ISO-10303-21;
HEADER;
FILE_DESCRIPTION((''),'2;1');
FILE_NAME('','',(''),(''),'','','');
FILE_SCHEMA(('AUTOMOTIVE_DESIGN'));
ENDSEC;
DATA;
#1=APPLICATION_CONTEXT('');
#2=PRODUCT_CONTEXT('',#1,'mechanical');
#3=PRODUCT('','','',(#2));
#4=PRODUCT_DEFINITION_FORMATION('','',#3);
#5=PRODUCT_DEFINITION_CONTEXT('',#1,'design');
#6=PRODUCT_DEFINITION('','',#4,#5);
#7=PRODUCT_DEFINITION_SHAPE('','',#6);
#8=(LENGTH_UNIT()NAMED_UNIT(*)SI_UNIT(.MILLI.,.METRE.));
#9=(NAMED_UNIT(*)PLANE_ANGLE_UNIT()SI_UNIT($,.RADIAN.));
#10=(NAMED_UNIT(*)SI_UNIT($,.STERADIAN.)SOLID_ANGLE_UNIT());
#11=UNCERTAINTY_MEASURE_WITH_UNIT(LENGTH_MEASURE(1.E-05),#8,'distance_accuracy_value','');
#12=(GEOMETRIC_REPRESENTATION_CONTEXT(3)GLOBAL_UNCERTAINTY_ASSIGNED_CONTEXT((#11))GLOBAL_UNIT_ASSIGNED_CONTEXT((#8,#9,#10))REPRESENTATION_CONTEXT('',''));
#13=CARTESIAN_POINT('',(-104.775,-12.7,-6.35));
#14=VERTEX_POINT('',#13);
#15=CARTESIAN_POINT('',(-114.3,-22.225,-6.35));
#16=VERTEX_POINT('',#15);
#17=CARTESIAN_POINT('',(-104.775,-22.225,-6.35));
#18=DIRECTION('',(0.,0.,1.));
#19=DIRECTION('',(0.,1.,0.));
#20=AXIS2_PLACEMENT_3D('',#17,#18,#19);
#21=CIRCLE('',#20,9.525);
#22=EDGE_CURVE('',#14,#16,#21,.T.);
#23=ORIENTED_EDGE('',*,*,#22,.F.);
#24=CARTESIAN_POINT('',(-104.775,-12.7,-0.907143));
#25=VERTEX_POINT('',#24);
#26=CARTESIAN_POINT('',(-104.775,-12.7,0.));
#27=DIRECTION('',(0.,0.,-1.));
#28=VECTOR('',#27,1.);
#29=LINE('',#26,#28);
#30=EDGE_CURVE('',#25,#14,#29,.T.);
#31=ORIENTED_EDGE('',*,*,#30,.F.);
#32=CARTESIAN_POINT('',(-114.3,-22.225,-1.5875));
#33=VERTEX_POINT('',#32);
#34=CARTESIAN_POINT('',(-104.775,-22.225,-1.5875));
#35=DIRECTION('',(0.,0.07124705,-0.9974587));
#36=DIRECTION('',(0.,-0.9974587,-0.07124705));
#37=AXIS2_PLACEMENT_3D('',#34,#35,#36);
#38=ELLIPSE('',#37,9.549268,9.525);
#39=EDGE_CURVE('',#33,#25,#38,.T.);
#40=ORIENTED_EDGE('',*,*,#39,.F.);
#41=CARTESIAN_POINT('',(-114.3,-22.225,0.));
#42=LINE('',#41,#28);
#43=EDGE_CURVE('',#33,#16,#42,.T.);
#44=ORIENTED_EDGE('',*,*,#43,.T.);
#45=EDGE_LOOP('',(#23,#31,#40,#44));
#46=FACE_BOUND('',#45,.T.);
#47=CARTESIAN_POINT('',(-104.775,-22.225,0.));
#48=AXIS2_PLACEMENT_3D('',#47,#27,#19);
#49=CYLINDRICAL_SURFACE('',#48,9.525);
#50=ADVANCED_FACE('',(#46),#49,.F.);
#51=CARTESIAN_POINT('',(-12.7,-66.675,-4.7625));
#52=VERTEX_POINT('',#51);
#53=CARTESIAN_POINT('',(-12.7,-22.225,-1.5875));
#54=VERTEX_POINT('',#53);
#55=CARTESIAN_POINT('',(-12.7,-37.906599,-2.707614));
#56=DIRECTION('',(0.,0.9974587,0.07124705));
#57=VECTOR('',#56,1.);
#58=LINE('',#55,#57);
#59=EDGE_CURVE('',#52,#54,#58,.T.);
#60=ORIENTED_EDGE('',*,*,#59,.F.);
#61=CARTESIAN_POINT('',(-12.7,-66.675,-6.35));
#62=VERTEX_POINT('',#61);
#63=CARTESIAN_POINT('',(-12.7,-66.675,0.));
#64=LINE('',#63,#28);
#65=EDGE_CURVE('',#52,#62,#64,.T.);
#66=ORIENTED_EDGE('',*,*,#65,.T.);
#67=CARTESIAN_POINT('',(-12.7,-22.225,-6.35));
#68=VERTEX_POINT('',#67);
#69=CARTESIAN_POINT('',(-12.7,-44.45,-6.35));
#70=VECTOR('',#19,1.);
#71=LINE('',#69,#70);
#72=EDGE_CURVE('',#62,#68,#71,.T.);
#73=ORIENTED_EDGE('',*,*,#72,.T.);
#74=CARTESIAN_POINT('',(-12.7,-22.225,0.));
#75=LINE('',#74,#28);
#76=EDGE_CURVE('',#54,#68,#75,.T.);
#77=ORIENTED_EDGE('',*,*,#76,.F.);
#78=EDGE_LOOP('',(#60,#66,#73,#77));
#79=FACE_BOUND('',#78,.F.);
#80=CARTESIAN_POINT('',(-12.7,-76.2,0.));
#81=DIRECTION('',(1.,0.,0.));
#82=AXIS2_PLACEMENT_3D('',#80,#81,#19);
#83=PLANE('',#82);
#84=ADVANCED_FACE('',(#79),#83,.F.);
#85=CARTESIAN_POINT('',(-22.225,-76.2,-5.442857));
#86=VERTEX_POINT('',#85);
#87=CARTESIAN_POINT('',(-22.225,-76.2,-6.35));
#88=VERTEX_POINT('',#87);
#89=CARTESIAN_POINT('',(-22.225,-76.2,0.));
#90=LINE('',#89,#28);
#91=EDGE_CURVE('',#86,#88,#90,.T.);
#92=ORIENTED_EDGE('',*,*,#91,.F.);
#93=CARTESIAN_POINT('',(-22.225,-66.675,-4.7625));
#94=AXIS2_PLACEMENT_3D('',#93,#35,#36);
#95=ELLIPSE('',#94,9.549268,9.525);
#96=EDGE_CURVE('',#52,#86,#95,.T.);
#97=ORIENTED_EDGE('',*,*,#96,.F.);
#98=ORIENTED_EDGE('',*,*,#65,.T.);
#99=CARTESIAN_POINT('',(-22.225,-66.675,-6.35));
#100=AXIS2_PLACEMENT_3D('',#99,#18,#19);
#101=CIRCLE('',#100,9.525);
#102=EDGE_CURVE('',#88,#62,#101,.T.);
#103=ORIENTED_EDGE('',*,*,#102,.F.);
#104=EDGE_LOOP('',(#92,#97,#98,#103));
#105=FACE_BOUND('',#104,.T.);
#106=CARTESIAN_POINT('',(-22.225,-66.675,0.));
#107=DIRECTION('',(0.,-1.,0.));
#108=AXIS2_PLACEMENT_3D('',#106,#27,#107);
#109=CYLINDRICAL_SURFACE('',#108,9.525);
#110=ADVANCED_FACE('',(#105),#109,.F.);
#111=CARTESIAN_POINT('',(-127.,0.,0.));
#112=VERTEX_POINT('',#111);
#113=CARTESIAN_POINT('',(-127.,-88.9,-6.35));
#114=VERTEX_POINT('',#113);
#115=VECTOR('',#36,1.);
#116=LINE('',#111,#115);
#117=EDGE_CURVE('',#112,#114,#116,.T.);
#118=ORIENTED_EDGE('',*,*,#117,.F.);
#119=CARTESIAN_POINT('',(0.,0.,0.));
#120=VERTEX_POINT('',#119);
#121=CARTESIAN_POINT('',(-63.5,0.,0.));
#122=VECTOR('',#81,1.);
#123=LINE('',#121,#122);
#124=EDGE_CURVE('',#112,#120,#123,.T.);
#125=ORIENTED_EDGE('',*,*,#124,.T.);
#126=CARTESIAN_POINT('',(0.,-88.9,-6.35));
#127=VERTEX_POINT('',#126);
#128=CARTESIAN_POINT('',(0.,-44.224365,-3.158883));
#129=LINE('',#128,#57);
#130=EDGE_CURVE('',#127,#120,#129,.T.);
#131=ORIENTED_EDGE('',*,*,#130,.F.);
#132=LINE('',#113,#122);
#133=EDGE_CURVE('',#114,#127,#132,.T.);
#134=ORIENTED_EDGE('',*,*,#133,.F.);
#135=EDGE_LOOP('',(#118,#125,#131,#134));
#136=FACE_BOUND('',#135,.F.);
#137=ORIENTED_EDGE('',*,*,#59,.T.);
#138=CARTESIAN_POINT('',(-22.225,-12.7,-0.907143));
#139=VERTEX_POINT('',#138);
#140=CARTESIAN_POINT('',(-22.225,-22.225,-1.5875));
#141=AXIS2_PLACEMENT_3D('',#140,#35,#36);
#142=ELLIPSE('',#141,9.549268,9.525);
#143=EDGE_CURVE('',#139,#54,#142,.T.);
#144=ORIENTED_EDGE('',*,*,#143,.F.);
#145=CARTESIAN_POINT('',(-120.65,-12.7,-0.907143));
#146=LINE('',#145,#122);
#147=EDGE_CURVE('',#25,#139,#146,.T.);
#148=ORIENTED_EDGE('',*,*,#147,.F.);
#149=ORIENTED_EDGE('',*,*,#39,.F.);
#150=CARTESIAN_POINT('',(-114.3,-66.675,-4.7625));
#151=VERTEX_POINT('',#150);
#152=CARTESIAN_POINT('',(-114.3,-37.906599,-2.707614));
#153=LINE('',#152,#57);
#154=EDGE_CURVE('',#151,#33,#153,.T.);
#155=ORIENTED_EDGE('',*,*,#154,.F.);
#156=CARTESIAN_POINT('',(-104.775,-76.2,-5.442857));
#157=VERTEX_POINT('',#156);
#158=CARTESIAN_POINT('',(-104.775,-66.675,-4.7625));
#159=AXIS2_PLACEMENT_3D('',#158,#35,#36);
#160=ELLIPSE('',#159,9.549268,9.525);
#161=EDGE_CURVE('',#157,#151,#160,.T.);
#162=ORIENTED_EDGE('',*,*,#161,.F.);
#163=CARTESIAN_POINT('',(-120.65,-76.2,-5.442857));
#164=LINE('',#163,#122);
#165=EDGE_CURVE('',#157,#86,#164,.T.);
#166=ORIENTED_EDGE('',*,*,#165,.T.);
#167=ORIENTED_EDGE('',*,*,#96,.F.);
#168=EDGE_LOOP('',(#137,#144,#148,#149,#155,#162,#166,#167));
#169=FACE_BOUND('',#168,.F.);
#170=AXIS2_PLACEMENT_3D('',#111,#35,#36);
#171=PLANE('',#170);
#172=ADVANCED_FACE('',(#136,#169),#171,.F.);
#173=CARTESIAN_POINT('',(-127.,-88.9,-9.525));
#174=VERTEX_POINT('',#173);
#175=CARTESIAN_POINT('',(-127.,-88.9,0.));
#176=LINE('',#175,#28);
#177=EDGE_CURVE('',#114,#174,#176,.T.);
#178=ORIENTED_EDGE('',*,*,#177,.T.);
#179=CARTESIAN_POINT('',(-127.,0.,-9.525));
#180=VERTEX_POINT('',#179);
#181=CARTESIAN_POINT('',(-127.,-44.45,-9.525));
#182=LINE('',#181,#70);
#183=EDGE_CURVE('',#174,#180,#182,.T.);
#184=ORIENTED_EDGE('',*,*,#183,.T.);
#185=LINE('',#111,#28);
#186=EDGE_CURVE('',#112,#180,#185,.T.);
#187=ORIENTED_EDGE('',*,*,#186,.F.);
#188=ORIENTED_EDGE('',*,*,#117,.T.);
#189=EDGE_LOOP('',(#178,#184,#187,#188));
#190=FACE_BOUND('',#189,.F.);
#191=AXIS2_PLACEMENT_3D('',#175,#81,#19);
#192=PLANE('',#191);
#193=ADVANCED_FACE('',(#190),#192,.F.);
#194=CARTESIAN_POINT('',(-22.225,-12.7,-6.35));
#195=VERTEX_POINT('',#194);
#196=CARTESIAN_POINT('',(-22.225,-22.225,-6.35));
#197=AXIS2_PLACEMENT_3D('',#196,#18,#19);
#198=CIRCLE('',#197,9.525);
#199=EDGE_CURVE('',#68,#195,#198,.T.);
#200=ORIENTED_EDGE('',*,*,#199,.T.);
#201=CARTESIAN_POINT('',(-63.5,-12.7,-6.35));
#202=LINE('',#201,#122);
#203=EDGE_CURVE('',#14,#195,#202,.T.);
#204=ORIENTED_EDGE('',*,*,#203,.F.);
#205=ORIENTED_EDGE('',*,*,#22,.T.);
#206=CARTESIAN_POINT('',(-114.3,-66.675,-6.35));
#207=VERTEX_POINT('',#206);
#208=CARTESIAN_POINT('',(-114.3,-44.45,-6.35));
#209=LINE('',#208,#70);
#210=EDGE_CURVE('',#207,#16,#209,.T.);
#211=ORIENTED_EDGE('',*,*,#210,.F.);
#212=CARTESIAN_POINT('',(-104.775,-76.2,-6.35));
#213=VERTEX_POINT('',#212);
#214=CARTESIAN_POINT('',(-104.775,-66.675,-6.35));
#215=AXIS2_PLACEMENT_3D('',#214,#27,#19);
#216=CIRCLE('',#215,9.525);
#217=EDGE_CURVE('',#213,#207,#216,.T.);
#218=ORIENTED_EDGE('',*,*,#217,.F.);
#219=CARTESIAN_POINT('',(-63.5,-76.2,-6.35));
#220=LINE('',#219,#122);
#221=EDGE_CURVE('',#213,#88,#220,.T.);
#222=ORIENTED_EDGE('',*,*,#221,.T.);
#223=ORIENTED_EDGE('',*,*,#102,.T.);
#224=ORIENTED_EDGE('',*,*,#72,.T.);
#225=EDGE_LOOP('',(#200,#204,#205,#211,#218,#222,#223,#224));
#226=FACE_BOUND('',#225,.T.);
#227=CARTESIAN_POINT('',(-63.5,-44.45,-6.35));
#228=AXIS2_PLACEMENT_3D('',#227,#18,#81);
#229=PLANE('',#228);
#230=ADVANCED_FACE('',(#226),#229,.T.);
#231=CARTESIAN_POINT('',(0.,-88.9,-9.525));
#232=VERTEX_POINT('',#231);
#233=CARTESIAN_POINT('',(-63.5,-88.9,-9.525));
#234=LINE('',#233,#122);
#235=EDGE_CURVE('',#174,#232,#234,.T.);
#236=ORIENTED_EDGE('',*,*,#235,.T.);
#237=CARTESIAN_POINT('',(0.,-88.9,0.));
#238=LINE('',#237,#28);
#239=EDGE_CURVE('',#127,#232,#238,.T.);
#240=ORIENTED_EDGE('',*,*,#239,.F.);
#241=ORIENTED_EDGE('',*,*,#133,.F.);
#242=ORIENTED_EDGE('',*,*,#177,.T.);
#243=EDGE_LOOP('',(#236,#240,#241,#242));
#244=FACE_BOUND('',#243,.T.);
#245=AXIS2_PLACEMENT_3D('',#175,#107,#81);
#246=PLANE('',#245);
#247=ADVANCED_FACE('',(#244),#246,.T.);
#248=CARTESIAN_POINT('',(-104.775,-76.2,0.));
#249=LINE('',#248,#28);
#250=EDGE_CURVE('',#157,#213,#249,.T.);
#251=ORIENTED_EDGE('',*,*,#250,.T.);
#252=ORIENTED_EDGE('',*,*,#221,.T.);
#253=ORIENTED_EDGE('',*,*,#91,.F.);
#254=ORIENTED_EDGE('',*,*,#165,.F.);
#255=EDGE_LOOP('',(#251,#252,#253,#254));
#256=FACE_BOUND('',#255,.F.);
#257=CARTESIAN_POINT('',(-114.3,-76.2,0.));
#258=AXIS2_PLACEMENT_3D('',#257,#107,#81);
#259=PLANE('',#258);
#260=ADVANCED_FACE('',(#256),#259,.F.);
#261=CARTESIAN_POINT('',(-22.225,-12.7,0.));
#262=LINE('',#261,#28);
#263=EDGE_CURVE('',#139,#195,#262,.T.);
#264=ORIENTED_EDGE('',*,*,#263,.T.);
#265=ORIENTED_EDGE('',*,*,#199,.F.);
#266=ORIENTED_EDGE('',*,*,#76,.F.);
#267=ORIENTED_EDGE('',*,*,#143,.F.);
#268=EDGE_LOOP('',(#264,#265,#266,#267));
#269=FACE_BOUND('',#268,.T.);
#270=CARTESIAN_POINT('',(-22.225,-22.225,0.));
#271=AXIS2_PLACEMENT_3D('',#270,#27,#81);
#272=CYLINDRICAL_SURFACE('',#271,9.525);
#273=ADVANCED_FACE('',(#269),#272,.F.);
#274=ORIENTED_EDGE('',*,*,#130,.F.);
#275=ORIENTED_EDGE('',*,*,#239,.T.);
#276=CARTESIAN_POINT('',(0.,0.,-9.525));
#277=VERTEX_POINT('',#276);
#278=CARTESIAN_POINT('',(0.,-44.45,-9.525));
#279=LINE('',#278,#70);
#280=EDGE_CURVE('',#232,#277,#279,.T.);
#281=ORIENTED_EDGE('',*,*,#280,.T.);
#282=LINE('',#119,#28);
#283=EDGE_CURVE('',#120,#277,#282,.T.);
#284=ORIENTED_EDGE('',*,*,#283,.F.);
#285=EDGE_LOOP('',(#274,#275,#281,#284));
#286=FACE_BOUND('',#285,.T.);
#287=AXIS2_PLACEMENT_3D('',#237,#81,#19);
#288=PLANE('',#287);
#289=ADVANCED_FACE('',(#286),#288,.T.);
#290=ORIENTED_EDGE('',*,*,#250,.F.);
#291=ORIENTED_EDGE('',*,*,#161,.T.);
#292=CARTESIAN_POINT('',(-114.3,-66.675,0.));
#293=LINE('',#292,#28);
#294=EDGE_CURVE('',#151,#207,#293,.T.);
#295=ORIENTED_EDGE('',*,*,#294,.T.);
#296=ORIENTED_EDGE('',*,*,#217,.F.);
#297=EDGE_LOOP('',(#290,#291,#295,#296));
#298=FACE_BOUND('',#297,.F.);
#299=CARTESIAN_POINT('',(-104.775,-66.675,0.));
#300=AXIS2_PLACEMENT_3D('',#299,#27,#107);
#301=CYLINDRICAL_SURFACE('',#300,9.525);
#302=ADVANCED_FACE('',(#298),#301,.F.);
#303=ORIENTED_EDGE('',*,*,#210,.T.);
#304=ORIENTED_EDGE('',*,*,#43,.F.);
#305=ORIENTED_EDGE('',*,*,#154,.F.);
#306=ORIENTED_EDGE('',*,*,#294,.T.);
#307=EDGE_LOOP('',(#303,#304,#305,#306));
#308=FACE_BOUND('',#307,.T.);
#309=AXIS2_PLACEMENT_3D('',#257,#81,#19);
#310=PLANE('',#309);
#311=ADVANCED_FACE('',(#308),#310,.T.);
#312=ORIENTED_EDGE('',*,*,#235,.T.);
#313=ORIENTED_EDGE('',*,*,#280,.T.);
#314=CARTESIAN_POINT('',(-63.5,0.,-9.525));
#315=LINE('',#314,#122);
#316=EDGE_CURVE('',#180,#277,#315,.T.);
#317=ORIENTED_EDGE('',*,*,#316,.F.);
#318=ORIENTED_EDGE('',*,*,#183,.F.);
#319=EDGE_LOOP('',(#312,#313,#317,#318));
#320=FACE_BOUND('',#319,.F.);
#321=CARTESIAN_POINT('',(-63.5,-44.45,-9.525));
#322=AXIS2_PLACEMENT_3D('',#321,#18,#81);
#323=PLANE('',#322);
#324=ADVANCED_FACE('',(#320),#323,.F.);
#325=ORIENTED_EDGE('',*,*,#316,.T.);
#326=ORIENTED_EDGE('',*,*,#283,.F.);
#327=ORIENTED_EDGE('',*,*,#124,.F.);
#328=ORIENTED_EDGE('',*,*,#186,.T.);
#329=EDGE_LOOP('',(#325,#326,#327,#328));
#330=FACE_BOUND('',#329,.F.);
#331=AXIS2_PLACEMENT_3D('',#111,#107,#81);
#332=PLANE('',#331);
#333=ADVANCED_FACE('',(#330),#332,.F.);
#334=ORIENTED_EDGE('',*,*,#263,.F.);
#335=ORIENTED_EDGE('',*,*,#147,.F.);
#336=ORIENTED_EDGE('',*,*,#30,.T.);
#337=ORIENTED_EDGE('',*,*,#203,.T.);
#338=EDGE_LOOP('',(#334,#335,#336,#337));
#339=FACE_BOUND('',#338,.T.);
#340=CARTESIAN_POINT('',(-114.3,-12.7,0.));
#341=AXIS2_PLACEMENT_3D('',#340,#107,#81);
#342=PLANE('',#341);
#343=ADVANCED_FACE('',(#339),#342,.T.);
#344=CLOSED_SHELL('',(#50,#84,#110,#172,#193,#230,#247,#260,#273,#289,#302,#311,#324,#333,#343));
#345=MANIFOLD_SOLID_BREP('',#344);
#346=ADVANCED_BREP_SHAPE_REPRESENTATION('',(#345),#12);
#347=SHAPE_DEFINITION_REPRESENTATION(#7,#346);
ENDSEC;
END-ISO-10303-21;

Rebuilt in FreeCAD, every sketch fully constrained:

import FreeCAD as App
import Part
import Sketcher
from FreeCAD import Vector
Q = App.Units.Quantity


def edges_at(feature, points):
    """Names of the edges that pass closest to the given points."""
    edges = feature.Shape.Edges
    near = lambda p: min(range(len(edges)), key=lambda i: edges[i].distToShape(Part.Vertex(*p))[0])
    return sorted({f"Edge{near(p) + 1}" for p in points})


def add_polygon(sketch, points):
    """Adds a closed chain of lines whose ends are joined by coincident constraints."""
    first, n = sketch.GeometryCount, len(points)
    for a, b in zip(points, points[1:] + points[:1]):
        sketch.addGeometry(Part.LineSegment(App.Vector(*a, 0), App.Vector(*b, 0)), False)
    for i in range(n):
        sketch.addConstraint(Sketcher.Constraint("Coincident", first + i, 2, first + (i + 1) % n, 1))

doc = App.newDocument("Part")
body = doc.addObject("PartDesign::Body", "Body")

# Sketch on XY plane
sketch1 = body.newObject("Sketcher::SketchObject", "Sketch")
sketch1.AttachmentSupport = (doc.getObject("XY_Plane"), [""])
sketch1.MapMode = "FlatFace"
add_polygon(sketch1, [(-127, 0), (-127, -89), (0, -89), (0, 0)])  # lines 0-3
sketch1.addConstraint(Sketcher.Constraint("Vertical", 0))
sketch1.addConstraint(Sketcher.Constraint("Horizontal", 1))
sketch1.addConstraint(Sketcher.Constraint("Vertical", 2))
sketch1.addConstraint(Sketcher.Constraint("Horizontal", 3))
sketch1.addConstraint(Sketcher.Constraint("Coincident", 2, 2, -1, 1))
sketch1.addConstraint(Sketcher.Constraint("DistanceX", 1, 1, 1, 2, Q("5 in")))
sketch1.addConstraint(Sketcher.Constraint("DistanceY", 0, 2, 0, 1, Q("3.5 in")))
pad1 = body.newObject("PartDesign::Pad", "Pad")
pad1.Profile = sketch1
pad1.Length = Q("0.375 in")
pad1.Reversed = True

# Sketch on XY plane
sketch2 = body.newObject("Sketcher::SketchObject", "Sketch001")
sketch2.AttachmentSupport = (doc.getObject("XY_Plane"), [""])
sketch2.MapMode = "FlatFace"
add_polygon(sketch2, [(-114, -13), (-114, -76), (-13, -76), (-13, -13)])  # lines 0-3
sketch2.addConstraint(Sketcher.Constraint("Vertical", 0))
sketch2.addConstraint(Sketcher.Constraint("Horizontal", 1))
sketch2.addConstraint(Sketcher.Constraint("Vertical", 2))
sketch2.addConstraint(Sketcher.Constraint("Horizontal", 3))
sketch2.addConstraint(Sketcher.Constraint("DistanceX", 1, 1, 1, 2, Q("4 in")))
sketch2.addConstraint(Sketcher.Constraint("DistanceY", 0, 2, 0, 1, Q("2.5 in")))
sketch2.addConstraint(Sketcher.Constraint("DistanceY", 0, 2, -1, 1, Q("3 in")))
sketch2.addConstraint(Sketcher.Constraint("DistanceX", 0, 2, -1, 1, Q("4.5 in")))
pocket1 = body.newObject("PartDesign::Pocket", "Pocket")
pocket1.Profile = sketch2
pocket1.Length = Q("0.25 in")
doc.recompute()

fillet = body.newObject("PartDesign::Fillet", "Fillet")
fillet.Base = (pocket1, edges_at(pocket1, [
    (-12.7, -12.7, -3.175),
    (-114.3, -12.7, -3.175),
    (-114.3, -76.2, -3.175),
    (-12.7, -76.2, -3.175),
]))
fillet.Radius = Q("0.375 in")

# Sketch on YZ plane
sketch3 = body.newObject("Sketcher::SketchObject", "Sketch002")
sketch3.AttachmentSupport = (doc.getObject("YZ_Plane"), [""])
sketch3.MapMode = "FlatFace"
sketch3.AttachmentOffset = App.Placement(Vector(0, 0, -5 * 25.4), App.Rotation())
add_polygon(sketch3, [(-89, 0), (0, 0), (-89, -6)])  # lines 0-2
sketch3.addConstraint(Sketcher.Constraint("Horizontal", 0))
sketch3.addConstraint(Sketcher.Constraint("Vertical", 2))
sketch3.addConstraint(Sketcher.Constraint("Coincident", 0, 2, -1, 1))
sketch3.addConstraint(Sketcher.Constraint("DistanceX", 0, 1, 0, 2, Q("3.5 in")))
sketch3.addConstraint(Sketcher.Constraint("DistanceY", 2, 1, 2, 2, Q("0.25 in")))
pocket2 = body.newObject("PartDesign::Pocket", "Pocket001")
pocket2.Profile = sketch3
pocket2.Type = "ThroughAll"
pocket2.Reversed = True

doc.recompute()
